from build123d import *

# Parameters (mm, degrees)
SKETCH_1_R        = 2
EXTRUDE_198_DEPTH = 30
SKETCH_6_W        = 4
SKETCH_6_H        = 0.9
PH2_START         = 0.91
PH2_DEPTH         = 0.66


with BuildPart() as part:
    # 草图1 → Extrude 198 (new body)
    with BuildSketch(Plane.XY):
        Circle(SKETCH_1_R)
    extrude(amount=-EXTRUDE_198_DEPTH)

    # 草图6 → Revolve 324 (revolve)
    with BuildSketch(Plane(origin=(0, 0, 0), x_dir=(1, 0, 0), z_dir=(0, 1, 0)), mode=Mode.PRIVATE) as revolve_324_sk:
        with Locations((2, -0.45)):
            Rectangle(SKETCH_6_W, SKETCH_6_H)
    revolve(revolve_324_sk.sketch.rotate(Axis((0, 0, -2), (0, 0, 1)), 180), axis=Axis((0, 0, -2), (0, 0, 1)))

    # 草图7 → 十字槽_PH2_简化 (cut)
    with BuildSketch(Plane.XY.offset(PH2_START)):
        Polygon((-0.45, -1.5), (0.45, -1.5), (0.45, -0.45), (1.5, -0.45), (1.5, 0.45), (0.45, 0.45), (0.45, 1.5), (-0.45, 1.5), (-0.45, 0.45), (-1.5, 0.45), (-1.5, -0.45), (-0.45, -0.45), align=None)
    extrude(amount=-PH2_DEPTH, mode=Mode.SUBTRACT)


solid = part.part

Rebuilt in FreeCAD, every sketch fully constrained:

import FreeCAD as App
import Part
import Sketcher
from FreeCAD import Vector

doc = App.newDocument("Part")
body = doc.addObject("PartDesign::Body", "Body")

# Sketch on XY plane
sketch1 = body.newObject("Sketcher::SketchObject", "Sketch")
sketch1.AttachmentSupport = (doc.getObject("XY_Plane"), [""])
sketch1.MapMode = "FlatFace"
sketch1.addGeometry(Part.Circle(Vector(0, 0, 0), Vector(0, 0, 1), 2), False)
sketch1.addConstraint(Sketcher.Constraint("Coincident", 0, 3, -1, 1))
sketch1.addConstraint(Sketcher.Constraint("Diameter", 0, 4.0))
pad1 = body.newObject("PartDesign::Pad", "Pad")
pad1.Profile = sketch1
pad1.Length = 30
pad1.Reversed = True

# Sketch on XZ plane
sketch2 = body.newObject("Sketcher::SketchObject", "Sketch001")
sketch2.AttachmentSupport = (doc.getObject("XZ_Plane"), [""])
sketch2.MapMode = "FlatFace"
sketch2.addGeometry(Part.LineSegment(Vector(0, 0, 0), Vector(0, 0.9, 0)), False)
sketch2.addGeometry(Part.LineSegment(Vector(0, 0.9, 0), Vector(4, 0.9, 0)), False)
sketch2.addGeometry(Part.LineSegment(Vector(4, 0.9, 0), Vector(4, 0, 0)), False)
sketch2.addGeometry(Part.LineSegment(Vector(4, 0, 0), Vector(0, 0, 0)), False)
sketch2.addConstraint(Sketcher.Constraint("Coincident", 0, 2, 1, 1))
sketch2.addConstraint(Sketcher.Constraint("Coincident", 1, 2, 2, 1))
sketch2.addConstraint(Sketcher.Constraint("Coincident", 2, 2, 3, 1))
sketch2.addConstraint(Sketcher.Constraint("Coincident", 3, 2, 0, 1))
sketch2.addConstraint(Sketcher.Constraint("Vertical", 0))
sketch2.addConstraint(Sketcher.Constraint("Horizontal", 1))
sketch2.addConstraint(Sketcher.Constraint("Vertical", 2))
sketch2.addConstraint(Sketcher.Constraint("Horizontal", 3))
sketch2.addConstraint(Sketcher.Constraint("Coincident", 3, 2, -1, 1))
sketch2.addConstraint(Sketcher.Constraint("DistanceX", 1, 1, 1, 2, 4.0))
sketch2.addConstraint(Sketcher.Constraint("DistanceY", 0, 1, 0, 2, 0.9))
revolution = body.newObject("PartDesign::Revolution", "Revolution")
revolution.Profile = sketch2
revolution.ReferenceAxis = (sketch2, ["V_Axis"])
revolution.Angle = 360

# Sketch on XY plane
sketch3 = body.newObject("Sketcher::SketchObject", "Sketch002")
sketch3.AttachmentSupport = (doc.getObject("XY_Plane"), [""])
sketch3.MapMode = "FlatFace"
sketch3.AttachmentOffset = App.Placement(Vector(0, 0, 0.91), App.Rotation())
sketch3.addGeometry(Part.LineSegment(Vector(-0.45, -1.5, 0), Vector(0.45, -1.5, 0)), False)
sketch3.addGeometry(Part.LineSegment(Vector(0.45, -1.5, 0), Vector(0.45, -0.45, 0)), False)
sketch3.addGeometry(Part.LineSegment(Vector(0.45, -0.45, 0), Vector(1.5, -0.45, 0)), False)
sketch3.addGeometry(Part.LineSegment(Vector(1.5, -0.45, 0), Vector(1.5, 0.45, 0)), False)
sketch3.addGeometry(Part.LineSegment(Vector(1.5, 0.45, 0), Vector(0.45, 0.45, 0)), False)
sketch3.addGeometry(Part.LineSegment(Vector(0.45, 0.45, 0), Vector(0.45, 1.5, 0)), False)
sketch3.addGeometry(Part.LineSegment(Vector(0.45, 1.5, 0), Vector(-0.45, 1.5, 0)), False)
sketch3.addGeometry(Part.LineSegment(Vector(-0.45, 1.5, 0), Vector(-0.45, 0.45, 0)), False)
sketch3.addGeometry(Part.LineSegment(Vector(-0.45, 0.45, 0), Vector(-1.5, 0.45, 0)), False)
sketch3.addGeometry(Part.LineSegment(Vector(-1.5, 0.45, 0), Vector(-1.5, -0.45, 0)), False)
sketch3.addGeometry(Part.LineSegment(Vector(-1.5, -0.45, 0), Vector(-0.45, -0.45, 0)), False)
sketch3.addGeometry(Part.LineSegment(Vector(-0.45, -0.45, 0), Vector(-0.45, -1.5, 0)), False)
sketch3.addConstraint(Sketcher.Constraint("Coincident", 0, 2, 1, 1))
sketch3.addConstraint(Sketcher.Constraint("Coincident", 1, 2, 2, 1))
sketch3.addConstraint(Sketcher.Constraint("Coincident", 2, 2, 3, 1))
sketch3.addConstraint(Sketcher.Constraint("Coincident", 3, 2, 4, 1))
sketch3.addConstraint(Sketcher.Constraint("Coincident", 4, 2, 5, 1))
sketch3.addConstraint(Sketcher.Constraint("Coincident", 5, 2, 6, 1))
sketch3.addConstraint(Sketcher.Constraint("Coincident", 6, 2, 7, 1))
sketch3.addConstraint(Sketcher.Constraint("Coincident", 7, 2, 8, 1))
sketch3.addConstraint(Sketcher.Constraint("Coincident", 8, 2, 9, 1))
sketch3.addConstraint(Sketcher.Constraint("Coincident", 9, 2, 10, 1))
sketch3.addConstraint(Sketcher.Constraint("Coincident", 10, 2, 11, 1))
sketch3.addConstraint(Sketcher.Constraint("Coincident", 11, 2, 0, 1))
sketch3.addConstraint(Sketcher.Constraint("Horizontal", 0))
sketch3.addConstraint(Sketcher.Constraint("Vertical", 1))
sketch3.addConstraint(Sketcher.Constraint("Horizontal", 2))
sketch3.addConstraint(Sketcher.Constraint("Vertical", 3))
sketch3.addConstraint(Sketcher.Constraint("Horizontal", 4))
sketch3.addConstraint(Sketcher.Constraint("Vertical", 5))
sketch3.addConstraint(Sketcher.Constraint("Horizontal", 6))
sketch3.addConstraint(Sketcher.Constraint("Vertical", 7))
sketch3.addConstraint(Sketcher.Constraint("Horizontal", 8))
sketch3.addConstraint(Sketcher.Constraint("Vertical", 9))
sketch3.addConstraint(Sketcher.Constraint("Horizontal", 10))
sketch3.addConstraint(Sketcher.Constraint("Vertical", 11))
sketch3.addConstraint(Sketcher.Constraint("Symmetric", 0, 2, 6, 2, -1, 1))
sketch3.addConstraint(Sketcher.Constraint("Symmetric", 2, 2, 8, 2, -1, 1))
sketch3.addConstraint(Sketcher.Constraint("Symmetric", 4, 2, 10, 2, -1, 1))
sketch3.addConstraint(Sketcher.Constraint("Symmetric", 4, 2, 7, 2, -2))
sketch3.addConstraint(Sketcher.Constraint("Equal", 10, 1))
sketch3.addConstraint(Sketcher.Constraint("Equal", 6, 3))
sketch3.addConstraint(Sketcher.Constraint("DistanceX", 0, 1, 0, 2, 0.9))
sketch3.addConstraint(Sketcher.Constraint("DistanceY", 0, 2, 5, 2, 3.0))
pocket1 = body.newObject("PartDesign::Pocket", "Pocket")
pocket1.Profile = sketch3
pocket1.Length = 0.66

doc.recompute()
